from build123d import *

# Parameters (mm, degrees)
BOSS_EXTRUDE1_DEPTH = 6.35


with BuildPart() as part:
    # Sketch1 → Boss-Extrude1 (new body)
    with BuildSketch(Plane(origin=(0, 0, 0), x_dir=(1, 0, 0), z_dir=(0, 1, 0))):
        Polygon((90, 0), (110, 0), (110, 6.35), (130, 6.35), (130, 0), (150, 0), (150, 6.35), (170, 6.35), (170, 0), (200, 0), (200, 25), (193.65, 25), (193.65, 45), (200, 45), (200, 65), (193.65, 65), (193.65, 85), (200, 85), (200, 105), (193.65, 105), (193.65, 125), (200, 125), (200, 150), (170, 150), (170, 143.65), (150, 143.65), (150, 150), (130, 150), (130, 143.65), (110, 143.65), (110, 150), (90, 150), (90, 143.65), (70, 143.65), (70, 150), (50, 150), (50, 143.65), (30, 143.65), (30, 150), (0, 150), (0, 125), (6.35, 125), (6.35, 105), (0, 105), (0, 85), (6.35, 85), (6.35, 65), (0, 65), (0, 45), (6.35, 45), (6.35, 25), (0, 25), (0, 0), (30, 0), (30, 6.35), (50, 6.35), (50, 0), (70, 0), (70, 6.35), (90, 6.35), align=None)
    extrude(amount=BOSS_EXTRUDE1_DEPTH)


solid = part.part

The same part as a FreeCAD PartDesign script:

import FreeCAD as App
import Part
import Sketcher
Q = App.Units.Quantity


def add_polygon(sketch, points):
    """Adds a closed chain of lines whose ends are joined by coincident constraints."""
    first, n = sketch.GeometryCount, len(points)
    for a, b in zip(points, points[1:] + points[:1]):
        sketch.addGeometry(Part.LineSegment(App.Vector(*a, 0), App.Vector(*b, 0)), False)
    for i in range(n):
        sketch.addConstraint(Sketcher.Constraint("Coincident", first + i, 2, first + (i + 1) % n, 1))

doc = App.newDocument("Part")
body = doc.addObject("PartDesign::Body", "Body")

# Sketch on XZ plane
sketch1 = body.newObject("Sketcher::SketchObject", "Sketch")
sketch1.AttachmentSupport = (doc.getObject("XZ_Plane"), [""])
sketch1.MapMode = "FlatFace"
add_polygon(sketch1, [(90, 0), (110, 0), (110, -6.35), (130, -6.35), (130, 0), (150, 0), (150, -6.35), (170, -6.35), (170, 0), (200, 0), (200, -25), (193.65, -25), (193.65, -45), (200, -45), (200, -65), (193.65, -65), (193.65, -85), (200, -85), (200, -105), (193.65, -105), (193.65, -125), (200, -125), (200, -150), (170, -150), (170, -143.65), (150, -143.65), (150, -150), (130, -150), (130, -143.65), (110, -143.65), (110, -150), (90, -150), (90, -143.65), (70, -143.65), (70, -150), (50, -150), (50, -143.65), (30, -143.65), (30, -150), (0, -150), (0, -125), (6.35, -125), (6.35, -105), (0, -105), (0, -85), (6.35, -85), (6.35, -65), (0, -65), (0, -45), (6.35, -45), (6.35, -25), (0, -25), (0, 0), (30, 0), (30, -6.35), (50, -6.35), (50, 0), (70, 0), (70, -6.35), (90, -6.35)])  # lines 0-59
sketch1.addConstraint([
    Sketcher.Constraint("Horizontal", 0),
    Sketcher.Constraint("Vertical", 1),
    Sketcher.Constraint("Horizontal", 2),
    Sketcher.Constraint("Vertical", 3),
    Sketcher.Constraint("Horizontal", 4),
    Sketcher.Constraint("Vertical", 5),
    Sketcher.Constraint("Horizontal", 6),
    Sketcher.Constraint("Vertical", 7),
    Sketcher.Constraint("Horizontal", 8),
    Sketcher.Constraint("Vertical", 9),
    Sketcher.Constraint("Horizontal", 10),
    Sketcher.Constraint("Vertical", 11),
    Sketcher.Constraint("Horizontal", 12),
    Sketcher.Constraint("Vertical", 13),
    Sketcher.Constraint("Horizontal", 14),
    Sketcher.Constraint("Vertical", 15),
    Sketcher.Constraint("Horizontal", 16),
    Sketcher.Constraint("Vertical", 17),
    Sketcher.Constraint("Horizontal", 18),
    Sketcher.Constraint("Vertical", 19),
    Sketcher.Constraint("Horizontal", 20),
    Sketcher.Constraint("Vertical", 21),
    Sketcher.Constraint("Horizontal", 22),
    Sketcher.Constraint("Vertical", 23),
    Sketcher.Constraint("Horizontal", 24),
    Sketcher.Constraint("Vertical", 25),
    Sketcher.Constraint("Horizontal", 26),
    Sketcher.Constraint("Vertical", 27),
    Sketcher.Constraint("Horizontal", 28),
    Sketcher.Constraint("Vertical", 29),
    Sketcher.Constraint("Horizontal", 30),
    Sketcher.Constraint("Vertical", 31),
    Sketcher.Constraint("Horizontal", 32),
    Sketcher.Constraint("Vertical", 33),
    Sketcher.Constraint("Horizontal", 34),
    Sketcher.Constraint("Vertical", 35),
    Sketcher.Constraint("Horizontal", 36),
    Sketcher.Constraint("Vertical", 37),
    Sketcher.Constraint("Horizontal", 38),
    Sketcher.Constraint("Vertical", 39),
    Sketcher.Constraint("Horizontal", 40),
    Sketcher.Constraint("Vertical", 41),
    Sketcher.Constraint("Horizontal", 42),
    Sketcher.Constraint("Vertical", 43),
    Sketcher.Constraint("Horizontal", 44),
    Sketcher.Constraint("Vertical", 45),
    Sketcher.Constraint("Horizontal", 46),
    Sketcher.Constraint("Vertical", 47),
    Sketcher.Constraint("Horizontal", 48),
    Sketcher.Constraint("Vertical", 49),
    Sketcher.Constraint("Horizontal", 50),
    Sketcher.Constraint("Vertical", 51),
    Sketcher.Constraint("Horizontal", 52),
    Sketcher.Constraint("Vertical", 53),
    Sketcher.Constraint("Horizontal", 54),
    Sketcher.Constraint("Vertical", 55),
    Sketcher.Constraint("Horizontal", 56),
    Sketcher.Constraint("Vertical", 57),
    Sketcher.Constraint("Horizontal", 58),
    Sketcher.Constraint("Vertical", 59),
    Sketcher.Constraint("Coincident", 51, 2, -1, 1),
    Sketcher.Constraint("PointOnObject", 0, 2, -1),
    Sketcher.Constraint("PointOnObject", 3, 2, -1),
    Sketcher.Constraint("PointOnObject", 7, 2, -1),
    Sketcher.Constraint("PointOnObject", 38, 2, -2),
    Sketcher.Constraint("PointOnObject", 42, 2, -2),
    Sketcher.Constraint("PointOnObject", 46, 2, -2),
    Sketcher.Constraint("PointOnObject", 55, 2, -1),
    Sketcher.Constraint("Horizontal", 2, 2, 5, 2),
    Sketcher.Constraint("Horizontal", 22, 2, 25, 2),
    Sketcher.Constraint("Horizontal", 24, 2, 27, 2),
    Sketcher.Constraint("Horizontal", 26, 2, 29, 2),
    Sketcher.Constraint("Horizontal", 28, 2, 31, 2),
    Sketcher.Constraint("Horizontal", 30, 2, 33, 2),
    Sketcher.Constraint("Horizontal", 32, 2, 35, 2),
    Sketcher.Constraint("Horizontal", 34, 2, 37, 2),
    Sketcher.Constraint("Horizontal", 20, 2, 39, 2),
    Sketcher.Constraint("Horizontal", 18, 2, 41, 2),
    Sketcher.Constraint("Horizontal", 16, 2, 43, 2),
    Sketcher.Constraint("Horizontal", 14, 2, 45, 2),
    Sketcher.Constraint("Horizontal", 12, 2, 47, 2),
    Sketcher.Constraint("Horizontal", 10, 2, 49, 2),
    Sketcher.Constraint("Horizontal", 6, 2, 53, 2),
    Sketcher.Constraint("Horizontal", 54, 2, 57, 2),
    Sketcher.Constraint("Vertical", 9, 2, 12, 2),
    Sketcher.Constraint("Vertical", 11, 2, 14, 2),
    Sketcher.Constraint("Vertical", 13, 2, 16, 2),
    Sketcher.Constraint("Vertical", 15, 2, 18, 2),
    Sketcher.Constraint("Vertical", 17, 2, 20, 2),
    Sketcher.Constraint("Vertical", 7, 2, 22, 2),
    Sketcher.Constraint("Vertical", 5, 2, 24, 2),
    Sketcher.Constraint("Vertical", 3, 2, 26, 2),
    Sketcher.Constraint("Vertical", 1, 2, 28, 2),
    Sketcher.Constraint("Vertical", 41, 2, 44, 2),
    Sketcher.Constraint("Vertical", 45, 2, 48, 2),
    Sketcher.Constraint("Vertical", 37, 2, 52, 2),
    Sketcher.Constraint("Vertical", 35, 2, 54, 2),
    Sketcher.Constraint("Vertical", 33, 2, 56, 2),
    Sketcher.Constraint("Vertical", 31, 2, 58, 2),
    Sketcher.Constraint("Equal", 0, 2),
    Sketcher.Constraint("Equal", 2, 4),
    Sketcher.Constraint("Equal", 4, 6),
    Sketcher.Constraint("Equal", 30, 32),
    Sketcher.Constraint("Equal", 32, 34),
    Sketcher.Constraint("Equal", 34, 36),
    Sketcher.Constraint("Equal", 22, 38),
    Sketcher.Constraint("Equal", 20, 40),
    Sketcher.Constraint("Equal", 50, 1),
    Sketcher.Constraint("Equal", 58, 11),
    Sketcher.Constraint("Equal", 11, 13),
    Sketcher.Constraint("Equal", 13, 15),
    Sketcher.Constraint("Equal", 15, 17),
    Sketcher.Constraint("Equal", 17, 19),
    Sketcher.Constraint("Equal", 9, 21),
    Sketcher.Constraint("Equal", 7, 23),
    Sketcher.Constraint("DistanceX", 0, 1, 0, 2, Q("20 mm")),
    Sketcher.Constraint("DistanceX", 8, 1, 8, 2, Q("30 mm")),
    Sketcher.Constraint("DistanceY", 9, 2, 9, 1, Q("25 mm")),
    Sketcher.Constraint("DistanceX", 10, 2, 10, 1, Q("6.35 mm")),
])
pad1 = body.newObject("PartDesign::Pad", "Pad")
pad1.Profile = sketch1
pad1.Length = 6.35
pad1.Reversed = True

doc.recompute()
